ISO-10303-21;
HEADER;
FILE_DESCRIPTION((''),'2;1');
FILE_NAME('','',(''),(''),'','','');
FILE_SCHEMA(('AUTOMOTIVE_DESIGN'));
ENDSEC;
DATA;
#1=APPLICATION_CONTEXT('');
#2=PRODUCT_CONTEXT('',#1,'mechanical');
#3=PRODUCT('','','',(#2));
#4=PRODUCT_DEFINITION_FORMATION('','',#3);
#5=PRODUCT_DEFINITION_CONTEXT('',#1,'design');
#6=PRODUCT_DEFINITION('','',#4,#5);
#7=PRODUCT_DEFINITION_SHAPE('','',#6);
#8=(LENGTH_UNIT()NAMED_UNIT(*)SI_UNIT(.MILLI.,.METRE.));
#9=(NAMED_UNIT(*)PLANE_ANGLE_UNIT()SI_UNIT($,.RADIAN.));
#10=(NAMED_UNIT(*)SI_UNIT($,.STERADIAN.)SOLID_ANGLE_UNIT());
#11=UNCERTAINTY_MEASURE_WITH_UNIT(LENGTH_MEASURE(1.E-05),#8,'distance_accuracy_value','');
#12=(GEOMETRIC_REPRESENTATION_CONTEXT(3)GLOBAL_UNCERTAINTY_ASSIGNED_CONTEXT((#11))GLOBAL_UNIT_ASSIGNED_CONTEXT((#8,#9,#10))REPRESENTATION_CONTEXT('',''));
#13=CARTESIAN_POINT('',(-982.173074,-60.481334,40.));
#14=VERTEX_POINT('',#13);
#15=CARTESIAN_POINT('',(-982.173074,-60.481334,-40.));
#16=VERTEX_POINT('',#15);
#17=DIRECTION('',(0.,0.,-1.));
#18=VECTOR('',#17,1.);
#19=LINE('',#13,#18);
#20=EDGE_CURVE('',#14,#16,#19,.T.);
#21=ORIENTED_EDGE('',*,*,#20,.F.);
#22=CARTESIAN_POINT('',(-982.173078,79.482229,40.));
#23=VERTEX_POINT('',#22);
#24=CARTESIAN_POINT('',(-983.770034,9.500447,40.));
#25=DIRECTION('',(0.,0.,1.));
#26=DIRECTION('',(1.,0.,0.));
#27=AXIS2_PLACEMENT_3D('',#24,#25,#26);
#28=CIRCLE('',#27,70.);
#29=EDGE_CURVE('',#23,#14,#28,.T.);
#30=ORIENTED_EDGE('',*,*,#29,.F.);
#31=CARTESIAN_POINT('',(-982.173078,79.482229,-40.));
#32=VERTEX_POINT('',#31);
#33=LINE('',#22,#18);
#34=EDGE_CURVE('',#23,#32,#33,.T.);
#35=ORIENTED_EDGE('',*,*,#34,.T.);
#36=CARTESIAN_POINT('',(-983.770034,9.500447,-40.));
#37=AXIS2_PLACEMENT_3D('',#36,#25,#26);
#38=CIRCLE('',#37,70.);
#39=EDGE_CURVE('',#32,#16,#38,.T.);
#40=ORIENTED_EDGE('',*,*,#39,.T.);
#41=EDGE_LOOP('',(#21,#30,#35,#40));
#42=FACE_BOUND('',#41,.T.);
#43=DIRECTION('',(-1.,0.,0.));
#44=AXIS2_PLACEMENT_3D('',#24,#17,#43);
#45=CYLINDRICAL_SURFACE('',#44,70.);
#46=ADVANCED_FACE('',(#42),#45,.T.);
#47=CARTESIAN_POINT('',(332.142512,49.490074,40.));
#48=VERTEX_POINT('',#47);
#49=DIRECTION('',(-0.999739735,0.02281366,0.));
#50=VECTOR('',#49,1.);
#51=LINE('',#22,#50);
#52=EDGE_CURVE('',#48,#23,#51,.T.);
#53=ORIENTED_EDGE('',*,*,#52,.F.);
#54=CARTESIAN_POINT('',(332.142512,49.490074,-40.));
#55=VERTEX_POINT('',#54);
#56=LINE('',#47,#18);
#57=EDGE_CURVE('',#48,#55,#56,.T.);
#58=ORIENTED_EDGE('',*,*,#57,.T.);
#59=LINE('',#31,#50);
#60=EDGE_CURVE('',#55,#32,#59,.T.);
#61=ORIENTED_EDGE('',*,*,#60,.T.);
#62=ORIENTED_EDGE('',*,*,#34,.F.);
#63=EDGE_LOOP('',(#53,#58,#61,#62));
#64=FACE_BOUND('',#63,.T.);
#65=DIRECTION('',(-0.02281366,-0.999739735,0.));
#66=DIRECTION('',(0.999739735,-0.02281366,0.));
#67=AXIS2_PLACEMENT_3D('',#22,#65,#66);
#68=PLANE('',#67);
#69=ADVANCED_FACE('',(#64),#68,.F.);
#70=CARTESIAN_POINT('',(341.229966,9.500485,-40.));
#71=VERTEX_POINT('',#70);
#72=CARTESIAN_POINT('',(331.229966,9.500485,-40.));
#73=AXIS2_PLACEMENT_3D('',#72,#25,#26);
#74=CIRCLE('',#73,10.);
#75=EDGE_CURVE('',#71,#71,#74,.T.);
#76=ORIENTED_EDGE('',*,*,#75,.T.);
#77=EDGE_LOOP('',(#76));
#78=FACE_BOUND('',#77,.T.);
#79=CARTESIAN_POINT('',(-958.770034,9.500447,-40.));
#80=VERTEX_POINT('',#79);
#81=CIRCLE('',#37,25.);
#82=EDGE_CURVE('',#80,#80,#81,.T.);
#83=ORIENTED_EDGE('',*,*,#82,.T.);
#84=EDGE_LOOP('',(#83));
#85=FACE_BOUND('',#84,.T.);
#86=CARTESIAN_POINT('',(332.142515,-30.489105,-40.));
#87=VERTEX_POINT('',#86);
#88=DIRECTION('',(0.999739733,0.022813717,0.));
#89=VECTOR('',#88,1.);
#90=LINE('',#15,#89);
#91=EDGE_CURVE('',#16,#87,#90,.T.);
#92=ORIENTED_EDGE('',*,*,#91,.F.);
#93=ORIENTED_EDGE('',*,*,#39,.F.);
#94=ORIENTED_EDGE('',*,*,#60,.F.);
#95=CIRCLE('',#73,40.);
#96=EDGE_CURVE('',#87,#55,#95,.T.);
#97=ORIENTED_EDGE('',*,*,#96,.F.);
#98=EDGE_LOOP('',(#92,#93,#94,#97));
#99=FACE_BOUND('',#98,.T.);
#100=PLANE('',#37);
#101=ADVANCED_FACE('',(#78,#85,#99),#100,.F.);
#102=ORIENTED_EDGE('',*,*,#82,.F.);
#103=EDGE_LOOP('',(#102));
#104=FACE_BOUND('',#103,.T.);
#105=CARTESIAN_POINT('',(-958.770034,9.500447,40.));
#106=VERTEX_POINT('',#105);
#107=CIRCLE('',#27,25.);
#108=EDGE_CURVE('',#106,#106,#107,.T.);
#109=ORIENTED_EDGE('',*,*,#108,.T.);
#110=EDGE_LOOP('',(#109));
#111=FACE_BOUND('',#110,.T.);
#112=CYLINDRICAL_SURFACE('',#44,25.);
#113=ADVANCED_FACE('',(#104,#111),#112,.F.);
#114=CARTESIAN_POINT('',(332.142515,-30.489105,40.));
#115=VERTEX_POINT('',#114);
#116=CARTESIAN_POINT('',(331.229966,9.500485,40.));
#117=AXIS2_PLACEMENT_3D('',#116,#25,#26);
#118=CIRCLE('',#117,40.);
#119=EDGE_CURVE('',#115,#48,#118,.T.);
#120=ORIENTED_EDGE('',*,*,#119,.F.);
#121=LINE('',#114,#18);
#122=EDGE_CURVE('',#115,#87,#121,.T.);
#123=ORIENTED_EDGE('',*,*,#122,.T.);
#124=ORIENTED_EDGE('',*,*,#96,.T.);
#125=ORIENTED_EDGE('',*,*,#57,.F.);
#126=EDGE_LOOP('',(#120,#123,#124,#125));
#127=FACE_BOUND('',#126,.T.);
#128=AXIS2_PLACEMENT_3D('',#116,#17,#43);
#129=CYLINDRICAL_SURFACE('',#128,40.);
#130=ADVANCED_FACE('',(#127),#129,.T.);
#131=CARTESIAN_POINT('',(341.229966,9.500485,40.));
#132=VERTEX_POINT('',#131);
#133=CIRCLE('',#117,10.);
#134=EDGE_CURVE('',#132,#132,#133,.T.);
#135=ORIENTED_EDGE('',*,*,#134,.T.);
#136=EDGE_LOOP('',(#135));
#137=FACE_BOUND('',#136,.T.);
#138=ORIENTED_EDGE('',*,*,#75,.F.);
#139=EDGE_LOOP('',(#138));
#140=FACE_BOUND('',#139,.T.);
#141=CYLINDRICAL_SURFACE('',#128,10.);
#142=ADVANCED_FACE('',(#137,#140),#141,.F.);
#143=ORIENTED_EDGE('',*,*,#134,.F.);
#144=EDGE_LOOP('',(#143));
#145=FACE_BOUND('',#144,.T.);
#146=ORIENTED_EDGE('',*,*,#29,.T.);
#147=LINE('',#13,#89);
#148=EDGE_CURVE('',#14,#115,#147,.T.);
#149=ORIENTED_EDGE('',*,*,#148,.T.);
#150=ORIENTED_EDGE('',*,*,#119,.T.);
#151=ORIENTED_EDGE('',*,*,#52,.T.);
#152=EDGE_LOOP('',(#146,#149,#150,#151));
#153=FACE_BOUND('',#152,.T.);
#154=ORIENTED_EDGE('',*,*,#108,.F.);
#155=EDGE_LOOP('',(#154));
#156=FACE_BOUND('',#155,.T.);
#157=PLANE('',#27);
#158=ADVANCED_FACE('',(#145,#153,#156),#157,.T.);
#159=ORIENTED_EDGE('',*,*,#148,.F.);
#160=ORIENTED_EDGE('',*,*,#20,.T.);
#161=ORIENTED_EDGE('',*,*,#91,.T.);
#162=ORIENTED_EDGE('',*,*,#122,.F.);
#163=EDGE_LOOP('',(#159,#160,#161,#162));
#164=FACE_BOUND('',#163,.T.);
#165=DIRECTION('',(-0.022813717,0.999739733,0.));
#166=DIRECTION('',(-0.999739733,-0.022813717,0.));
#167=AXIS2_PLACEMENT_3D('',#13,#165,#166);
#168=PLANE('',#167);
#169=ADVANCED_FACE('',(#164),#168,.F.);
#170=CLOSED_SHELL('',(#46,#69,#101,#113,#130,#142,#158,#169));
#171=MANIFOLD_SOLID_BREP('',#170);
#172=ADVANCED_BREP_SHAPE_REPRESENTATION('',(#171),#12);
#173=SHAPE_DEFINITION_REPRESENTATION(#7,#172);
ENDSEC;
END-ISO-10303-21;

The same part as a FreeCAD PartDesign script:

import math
import FreeCAD as App
import Part
import Sketcher

V = App.Vector

doc = App.newDocument("Part")
params = doc.addObject("Spreadsheet::Sheet", "Params")
for row, (alias, value) in enumerate([
    ("sketch1_diameter", "20 mm"),
    ("sketch1_diameter2", "50 mm"),
    ("sketch1_radius", "70 mm"),
    ("sketch1_radius2", "40 mm"),
    ("pad1_length", "80 mm"),
], start=1):
    params.set(f"A{row}", alias)
    params.set(f"B{row}", "=" + value)
    params.setAlias(f"B{row}", alias)

body = doc.addObject("PartDesign::Body", "Body")

# Sketch on XY plane
sketch1 = body.newObject("Sketcher::SketchObject", "Sketch")
sketch1.AttachmentSupport = (doc.getObject("XY_Plane"), [""])
sketch1.MapMode = "FlatFace"
sketch1.addGeometry([
    Part.LineSegment(V(332, 49, 0), V(-982, 79, 0)),  # 0
    Part.ArcOfCircle(Part.Circle(V(-984, 10, 0), V(0, 0, 1), 70), math.radians(89), math.radians(271)),  # 1
    Part.LineSegment(V(-982, -60, 0), V(332, -30, 0)),  # 2
    Part.ArcOfCircle(Part.Circle(V(331, 10, 0), V(0, 0, 1), 40), math.radians(-89), math.radians(89)),  # 3
    Part.Circle(V(331, 10, 0), V(0, 0, 1), 10),  # 4
    Part.Circle(V(-984, 10, 0), V(0, 0, 1), 25),  # 5
], False)
sketch1.addConstraint([
    Sketcher.Constraint("Tangent", 0, 2, 1, 1),
    Sketcher.Constraint("Tangent", 1, 2, 2, 1),
    Sketcher.Constraint("Tangent", 2, 2, 3, 1),
    Sketcher.Constraint("Tangent", 3, 2, 0, 1),
    Sketcher.Constraint("Coincident", 4, 3, 3, 3),
    Sketcher.Constraint("Coincident", 5, 3, 1, 3),
    Sketcher.Constraint("Diameter", 4, 20.0),
    Sketcher.Constraint("Diameter", 5, 50.0),
    Sketcher.Constraint("Radius", 1, 70.0),
    Sketcher.Constraint("Radius", 3, 40.0),
    Sketcher.Constraint("DistanceX", 1, 3, 3, 3, 1315.0),
    Sketcher.Constraint("DistanceY", -1, 1, 0, 2, 79.482229),
    Sketcher.Constraint("DistanceY", 1, 2, 3, 3, 69.981819),
    Sketcher.Constraint("DistanceX", 1, 3, -1, 1, 983.770034),
])
sketch1.setExpression("Constraints[6]", "Params.sketch1_diameter")
sketch1.setExpression("Constraints[7]", "Params.sketch1_diameter2")
sketch1.setExpression("Constraints[8]", "Params.sketch1_radius")
sketch1.setExpression("Constraints[9]", "Params.sketch1_radius2")
pad1 = body.newObject("PartDesign::Pad", "Pad")
pad1.Profile = sketch1
pad1.setExpression("Length", "Params.pad1_length")
pad1.Midplane = True

doc.recompute()
